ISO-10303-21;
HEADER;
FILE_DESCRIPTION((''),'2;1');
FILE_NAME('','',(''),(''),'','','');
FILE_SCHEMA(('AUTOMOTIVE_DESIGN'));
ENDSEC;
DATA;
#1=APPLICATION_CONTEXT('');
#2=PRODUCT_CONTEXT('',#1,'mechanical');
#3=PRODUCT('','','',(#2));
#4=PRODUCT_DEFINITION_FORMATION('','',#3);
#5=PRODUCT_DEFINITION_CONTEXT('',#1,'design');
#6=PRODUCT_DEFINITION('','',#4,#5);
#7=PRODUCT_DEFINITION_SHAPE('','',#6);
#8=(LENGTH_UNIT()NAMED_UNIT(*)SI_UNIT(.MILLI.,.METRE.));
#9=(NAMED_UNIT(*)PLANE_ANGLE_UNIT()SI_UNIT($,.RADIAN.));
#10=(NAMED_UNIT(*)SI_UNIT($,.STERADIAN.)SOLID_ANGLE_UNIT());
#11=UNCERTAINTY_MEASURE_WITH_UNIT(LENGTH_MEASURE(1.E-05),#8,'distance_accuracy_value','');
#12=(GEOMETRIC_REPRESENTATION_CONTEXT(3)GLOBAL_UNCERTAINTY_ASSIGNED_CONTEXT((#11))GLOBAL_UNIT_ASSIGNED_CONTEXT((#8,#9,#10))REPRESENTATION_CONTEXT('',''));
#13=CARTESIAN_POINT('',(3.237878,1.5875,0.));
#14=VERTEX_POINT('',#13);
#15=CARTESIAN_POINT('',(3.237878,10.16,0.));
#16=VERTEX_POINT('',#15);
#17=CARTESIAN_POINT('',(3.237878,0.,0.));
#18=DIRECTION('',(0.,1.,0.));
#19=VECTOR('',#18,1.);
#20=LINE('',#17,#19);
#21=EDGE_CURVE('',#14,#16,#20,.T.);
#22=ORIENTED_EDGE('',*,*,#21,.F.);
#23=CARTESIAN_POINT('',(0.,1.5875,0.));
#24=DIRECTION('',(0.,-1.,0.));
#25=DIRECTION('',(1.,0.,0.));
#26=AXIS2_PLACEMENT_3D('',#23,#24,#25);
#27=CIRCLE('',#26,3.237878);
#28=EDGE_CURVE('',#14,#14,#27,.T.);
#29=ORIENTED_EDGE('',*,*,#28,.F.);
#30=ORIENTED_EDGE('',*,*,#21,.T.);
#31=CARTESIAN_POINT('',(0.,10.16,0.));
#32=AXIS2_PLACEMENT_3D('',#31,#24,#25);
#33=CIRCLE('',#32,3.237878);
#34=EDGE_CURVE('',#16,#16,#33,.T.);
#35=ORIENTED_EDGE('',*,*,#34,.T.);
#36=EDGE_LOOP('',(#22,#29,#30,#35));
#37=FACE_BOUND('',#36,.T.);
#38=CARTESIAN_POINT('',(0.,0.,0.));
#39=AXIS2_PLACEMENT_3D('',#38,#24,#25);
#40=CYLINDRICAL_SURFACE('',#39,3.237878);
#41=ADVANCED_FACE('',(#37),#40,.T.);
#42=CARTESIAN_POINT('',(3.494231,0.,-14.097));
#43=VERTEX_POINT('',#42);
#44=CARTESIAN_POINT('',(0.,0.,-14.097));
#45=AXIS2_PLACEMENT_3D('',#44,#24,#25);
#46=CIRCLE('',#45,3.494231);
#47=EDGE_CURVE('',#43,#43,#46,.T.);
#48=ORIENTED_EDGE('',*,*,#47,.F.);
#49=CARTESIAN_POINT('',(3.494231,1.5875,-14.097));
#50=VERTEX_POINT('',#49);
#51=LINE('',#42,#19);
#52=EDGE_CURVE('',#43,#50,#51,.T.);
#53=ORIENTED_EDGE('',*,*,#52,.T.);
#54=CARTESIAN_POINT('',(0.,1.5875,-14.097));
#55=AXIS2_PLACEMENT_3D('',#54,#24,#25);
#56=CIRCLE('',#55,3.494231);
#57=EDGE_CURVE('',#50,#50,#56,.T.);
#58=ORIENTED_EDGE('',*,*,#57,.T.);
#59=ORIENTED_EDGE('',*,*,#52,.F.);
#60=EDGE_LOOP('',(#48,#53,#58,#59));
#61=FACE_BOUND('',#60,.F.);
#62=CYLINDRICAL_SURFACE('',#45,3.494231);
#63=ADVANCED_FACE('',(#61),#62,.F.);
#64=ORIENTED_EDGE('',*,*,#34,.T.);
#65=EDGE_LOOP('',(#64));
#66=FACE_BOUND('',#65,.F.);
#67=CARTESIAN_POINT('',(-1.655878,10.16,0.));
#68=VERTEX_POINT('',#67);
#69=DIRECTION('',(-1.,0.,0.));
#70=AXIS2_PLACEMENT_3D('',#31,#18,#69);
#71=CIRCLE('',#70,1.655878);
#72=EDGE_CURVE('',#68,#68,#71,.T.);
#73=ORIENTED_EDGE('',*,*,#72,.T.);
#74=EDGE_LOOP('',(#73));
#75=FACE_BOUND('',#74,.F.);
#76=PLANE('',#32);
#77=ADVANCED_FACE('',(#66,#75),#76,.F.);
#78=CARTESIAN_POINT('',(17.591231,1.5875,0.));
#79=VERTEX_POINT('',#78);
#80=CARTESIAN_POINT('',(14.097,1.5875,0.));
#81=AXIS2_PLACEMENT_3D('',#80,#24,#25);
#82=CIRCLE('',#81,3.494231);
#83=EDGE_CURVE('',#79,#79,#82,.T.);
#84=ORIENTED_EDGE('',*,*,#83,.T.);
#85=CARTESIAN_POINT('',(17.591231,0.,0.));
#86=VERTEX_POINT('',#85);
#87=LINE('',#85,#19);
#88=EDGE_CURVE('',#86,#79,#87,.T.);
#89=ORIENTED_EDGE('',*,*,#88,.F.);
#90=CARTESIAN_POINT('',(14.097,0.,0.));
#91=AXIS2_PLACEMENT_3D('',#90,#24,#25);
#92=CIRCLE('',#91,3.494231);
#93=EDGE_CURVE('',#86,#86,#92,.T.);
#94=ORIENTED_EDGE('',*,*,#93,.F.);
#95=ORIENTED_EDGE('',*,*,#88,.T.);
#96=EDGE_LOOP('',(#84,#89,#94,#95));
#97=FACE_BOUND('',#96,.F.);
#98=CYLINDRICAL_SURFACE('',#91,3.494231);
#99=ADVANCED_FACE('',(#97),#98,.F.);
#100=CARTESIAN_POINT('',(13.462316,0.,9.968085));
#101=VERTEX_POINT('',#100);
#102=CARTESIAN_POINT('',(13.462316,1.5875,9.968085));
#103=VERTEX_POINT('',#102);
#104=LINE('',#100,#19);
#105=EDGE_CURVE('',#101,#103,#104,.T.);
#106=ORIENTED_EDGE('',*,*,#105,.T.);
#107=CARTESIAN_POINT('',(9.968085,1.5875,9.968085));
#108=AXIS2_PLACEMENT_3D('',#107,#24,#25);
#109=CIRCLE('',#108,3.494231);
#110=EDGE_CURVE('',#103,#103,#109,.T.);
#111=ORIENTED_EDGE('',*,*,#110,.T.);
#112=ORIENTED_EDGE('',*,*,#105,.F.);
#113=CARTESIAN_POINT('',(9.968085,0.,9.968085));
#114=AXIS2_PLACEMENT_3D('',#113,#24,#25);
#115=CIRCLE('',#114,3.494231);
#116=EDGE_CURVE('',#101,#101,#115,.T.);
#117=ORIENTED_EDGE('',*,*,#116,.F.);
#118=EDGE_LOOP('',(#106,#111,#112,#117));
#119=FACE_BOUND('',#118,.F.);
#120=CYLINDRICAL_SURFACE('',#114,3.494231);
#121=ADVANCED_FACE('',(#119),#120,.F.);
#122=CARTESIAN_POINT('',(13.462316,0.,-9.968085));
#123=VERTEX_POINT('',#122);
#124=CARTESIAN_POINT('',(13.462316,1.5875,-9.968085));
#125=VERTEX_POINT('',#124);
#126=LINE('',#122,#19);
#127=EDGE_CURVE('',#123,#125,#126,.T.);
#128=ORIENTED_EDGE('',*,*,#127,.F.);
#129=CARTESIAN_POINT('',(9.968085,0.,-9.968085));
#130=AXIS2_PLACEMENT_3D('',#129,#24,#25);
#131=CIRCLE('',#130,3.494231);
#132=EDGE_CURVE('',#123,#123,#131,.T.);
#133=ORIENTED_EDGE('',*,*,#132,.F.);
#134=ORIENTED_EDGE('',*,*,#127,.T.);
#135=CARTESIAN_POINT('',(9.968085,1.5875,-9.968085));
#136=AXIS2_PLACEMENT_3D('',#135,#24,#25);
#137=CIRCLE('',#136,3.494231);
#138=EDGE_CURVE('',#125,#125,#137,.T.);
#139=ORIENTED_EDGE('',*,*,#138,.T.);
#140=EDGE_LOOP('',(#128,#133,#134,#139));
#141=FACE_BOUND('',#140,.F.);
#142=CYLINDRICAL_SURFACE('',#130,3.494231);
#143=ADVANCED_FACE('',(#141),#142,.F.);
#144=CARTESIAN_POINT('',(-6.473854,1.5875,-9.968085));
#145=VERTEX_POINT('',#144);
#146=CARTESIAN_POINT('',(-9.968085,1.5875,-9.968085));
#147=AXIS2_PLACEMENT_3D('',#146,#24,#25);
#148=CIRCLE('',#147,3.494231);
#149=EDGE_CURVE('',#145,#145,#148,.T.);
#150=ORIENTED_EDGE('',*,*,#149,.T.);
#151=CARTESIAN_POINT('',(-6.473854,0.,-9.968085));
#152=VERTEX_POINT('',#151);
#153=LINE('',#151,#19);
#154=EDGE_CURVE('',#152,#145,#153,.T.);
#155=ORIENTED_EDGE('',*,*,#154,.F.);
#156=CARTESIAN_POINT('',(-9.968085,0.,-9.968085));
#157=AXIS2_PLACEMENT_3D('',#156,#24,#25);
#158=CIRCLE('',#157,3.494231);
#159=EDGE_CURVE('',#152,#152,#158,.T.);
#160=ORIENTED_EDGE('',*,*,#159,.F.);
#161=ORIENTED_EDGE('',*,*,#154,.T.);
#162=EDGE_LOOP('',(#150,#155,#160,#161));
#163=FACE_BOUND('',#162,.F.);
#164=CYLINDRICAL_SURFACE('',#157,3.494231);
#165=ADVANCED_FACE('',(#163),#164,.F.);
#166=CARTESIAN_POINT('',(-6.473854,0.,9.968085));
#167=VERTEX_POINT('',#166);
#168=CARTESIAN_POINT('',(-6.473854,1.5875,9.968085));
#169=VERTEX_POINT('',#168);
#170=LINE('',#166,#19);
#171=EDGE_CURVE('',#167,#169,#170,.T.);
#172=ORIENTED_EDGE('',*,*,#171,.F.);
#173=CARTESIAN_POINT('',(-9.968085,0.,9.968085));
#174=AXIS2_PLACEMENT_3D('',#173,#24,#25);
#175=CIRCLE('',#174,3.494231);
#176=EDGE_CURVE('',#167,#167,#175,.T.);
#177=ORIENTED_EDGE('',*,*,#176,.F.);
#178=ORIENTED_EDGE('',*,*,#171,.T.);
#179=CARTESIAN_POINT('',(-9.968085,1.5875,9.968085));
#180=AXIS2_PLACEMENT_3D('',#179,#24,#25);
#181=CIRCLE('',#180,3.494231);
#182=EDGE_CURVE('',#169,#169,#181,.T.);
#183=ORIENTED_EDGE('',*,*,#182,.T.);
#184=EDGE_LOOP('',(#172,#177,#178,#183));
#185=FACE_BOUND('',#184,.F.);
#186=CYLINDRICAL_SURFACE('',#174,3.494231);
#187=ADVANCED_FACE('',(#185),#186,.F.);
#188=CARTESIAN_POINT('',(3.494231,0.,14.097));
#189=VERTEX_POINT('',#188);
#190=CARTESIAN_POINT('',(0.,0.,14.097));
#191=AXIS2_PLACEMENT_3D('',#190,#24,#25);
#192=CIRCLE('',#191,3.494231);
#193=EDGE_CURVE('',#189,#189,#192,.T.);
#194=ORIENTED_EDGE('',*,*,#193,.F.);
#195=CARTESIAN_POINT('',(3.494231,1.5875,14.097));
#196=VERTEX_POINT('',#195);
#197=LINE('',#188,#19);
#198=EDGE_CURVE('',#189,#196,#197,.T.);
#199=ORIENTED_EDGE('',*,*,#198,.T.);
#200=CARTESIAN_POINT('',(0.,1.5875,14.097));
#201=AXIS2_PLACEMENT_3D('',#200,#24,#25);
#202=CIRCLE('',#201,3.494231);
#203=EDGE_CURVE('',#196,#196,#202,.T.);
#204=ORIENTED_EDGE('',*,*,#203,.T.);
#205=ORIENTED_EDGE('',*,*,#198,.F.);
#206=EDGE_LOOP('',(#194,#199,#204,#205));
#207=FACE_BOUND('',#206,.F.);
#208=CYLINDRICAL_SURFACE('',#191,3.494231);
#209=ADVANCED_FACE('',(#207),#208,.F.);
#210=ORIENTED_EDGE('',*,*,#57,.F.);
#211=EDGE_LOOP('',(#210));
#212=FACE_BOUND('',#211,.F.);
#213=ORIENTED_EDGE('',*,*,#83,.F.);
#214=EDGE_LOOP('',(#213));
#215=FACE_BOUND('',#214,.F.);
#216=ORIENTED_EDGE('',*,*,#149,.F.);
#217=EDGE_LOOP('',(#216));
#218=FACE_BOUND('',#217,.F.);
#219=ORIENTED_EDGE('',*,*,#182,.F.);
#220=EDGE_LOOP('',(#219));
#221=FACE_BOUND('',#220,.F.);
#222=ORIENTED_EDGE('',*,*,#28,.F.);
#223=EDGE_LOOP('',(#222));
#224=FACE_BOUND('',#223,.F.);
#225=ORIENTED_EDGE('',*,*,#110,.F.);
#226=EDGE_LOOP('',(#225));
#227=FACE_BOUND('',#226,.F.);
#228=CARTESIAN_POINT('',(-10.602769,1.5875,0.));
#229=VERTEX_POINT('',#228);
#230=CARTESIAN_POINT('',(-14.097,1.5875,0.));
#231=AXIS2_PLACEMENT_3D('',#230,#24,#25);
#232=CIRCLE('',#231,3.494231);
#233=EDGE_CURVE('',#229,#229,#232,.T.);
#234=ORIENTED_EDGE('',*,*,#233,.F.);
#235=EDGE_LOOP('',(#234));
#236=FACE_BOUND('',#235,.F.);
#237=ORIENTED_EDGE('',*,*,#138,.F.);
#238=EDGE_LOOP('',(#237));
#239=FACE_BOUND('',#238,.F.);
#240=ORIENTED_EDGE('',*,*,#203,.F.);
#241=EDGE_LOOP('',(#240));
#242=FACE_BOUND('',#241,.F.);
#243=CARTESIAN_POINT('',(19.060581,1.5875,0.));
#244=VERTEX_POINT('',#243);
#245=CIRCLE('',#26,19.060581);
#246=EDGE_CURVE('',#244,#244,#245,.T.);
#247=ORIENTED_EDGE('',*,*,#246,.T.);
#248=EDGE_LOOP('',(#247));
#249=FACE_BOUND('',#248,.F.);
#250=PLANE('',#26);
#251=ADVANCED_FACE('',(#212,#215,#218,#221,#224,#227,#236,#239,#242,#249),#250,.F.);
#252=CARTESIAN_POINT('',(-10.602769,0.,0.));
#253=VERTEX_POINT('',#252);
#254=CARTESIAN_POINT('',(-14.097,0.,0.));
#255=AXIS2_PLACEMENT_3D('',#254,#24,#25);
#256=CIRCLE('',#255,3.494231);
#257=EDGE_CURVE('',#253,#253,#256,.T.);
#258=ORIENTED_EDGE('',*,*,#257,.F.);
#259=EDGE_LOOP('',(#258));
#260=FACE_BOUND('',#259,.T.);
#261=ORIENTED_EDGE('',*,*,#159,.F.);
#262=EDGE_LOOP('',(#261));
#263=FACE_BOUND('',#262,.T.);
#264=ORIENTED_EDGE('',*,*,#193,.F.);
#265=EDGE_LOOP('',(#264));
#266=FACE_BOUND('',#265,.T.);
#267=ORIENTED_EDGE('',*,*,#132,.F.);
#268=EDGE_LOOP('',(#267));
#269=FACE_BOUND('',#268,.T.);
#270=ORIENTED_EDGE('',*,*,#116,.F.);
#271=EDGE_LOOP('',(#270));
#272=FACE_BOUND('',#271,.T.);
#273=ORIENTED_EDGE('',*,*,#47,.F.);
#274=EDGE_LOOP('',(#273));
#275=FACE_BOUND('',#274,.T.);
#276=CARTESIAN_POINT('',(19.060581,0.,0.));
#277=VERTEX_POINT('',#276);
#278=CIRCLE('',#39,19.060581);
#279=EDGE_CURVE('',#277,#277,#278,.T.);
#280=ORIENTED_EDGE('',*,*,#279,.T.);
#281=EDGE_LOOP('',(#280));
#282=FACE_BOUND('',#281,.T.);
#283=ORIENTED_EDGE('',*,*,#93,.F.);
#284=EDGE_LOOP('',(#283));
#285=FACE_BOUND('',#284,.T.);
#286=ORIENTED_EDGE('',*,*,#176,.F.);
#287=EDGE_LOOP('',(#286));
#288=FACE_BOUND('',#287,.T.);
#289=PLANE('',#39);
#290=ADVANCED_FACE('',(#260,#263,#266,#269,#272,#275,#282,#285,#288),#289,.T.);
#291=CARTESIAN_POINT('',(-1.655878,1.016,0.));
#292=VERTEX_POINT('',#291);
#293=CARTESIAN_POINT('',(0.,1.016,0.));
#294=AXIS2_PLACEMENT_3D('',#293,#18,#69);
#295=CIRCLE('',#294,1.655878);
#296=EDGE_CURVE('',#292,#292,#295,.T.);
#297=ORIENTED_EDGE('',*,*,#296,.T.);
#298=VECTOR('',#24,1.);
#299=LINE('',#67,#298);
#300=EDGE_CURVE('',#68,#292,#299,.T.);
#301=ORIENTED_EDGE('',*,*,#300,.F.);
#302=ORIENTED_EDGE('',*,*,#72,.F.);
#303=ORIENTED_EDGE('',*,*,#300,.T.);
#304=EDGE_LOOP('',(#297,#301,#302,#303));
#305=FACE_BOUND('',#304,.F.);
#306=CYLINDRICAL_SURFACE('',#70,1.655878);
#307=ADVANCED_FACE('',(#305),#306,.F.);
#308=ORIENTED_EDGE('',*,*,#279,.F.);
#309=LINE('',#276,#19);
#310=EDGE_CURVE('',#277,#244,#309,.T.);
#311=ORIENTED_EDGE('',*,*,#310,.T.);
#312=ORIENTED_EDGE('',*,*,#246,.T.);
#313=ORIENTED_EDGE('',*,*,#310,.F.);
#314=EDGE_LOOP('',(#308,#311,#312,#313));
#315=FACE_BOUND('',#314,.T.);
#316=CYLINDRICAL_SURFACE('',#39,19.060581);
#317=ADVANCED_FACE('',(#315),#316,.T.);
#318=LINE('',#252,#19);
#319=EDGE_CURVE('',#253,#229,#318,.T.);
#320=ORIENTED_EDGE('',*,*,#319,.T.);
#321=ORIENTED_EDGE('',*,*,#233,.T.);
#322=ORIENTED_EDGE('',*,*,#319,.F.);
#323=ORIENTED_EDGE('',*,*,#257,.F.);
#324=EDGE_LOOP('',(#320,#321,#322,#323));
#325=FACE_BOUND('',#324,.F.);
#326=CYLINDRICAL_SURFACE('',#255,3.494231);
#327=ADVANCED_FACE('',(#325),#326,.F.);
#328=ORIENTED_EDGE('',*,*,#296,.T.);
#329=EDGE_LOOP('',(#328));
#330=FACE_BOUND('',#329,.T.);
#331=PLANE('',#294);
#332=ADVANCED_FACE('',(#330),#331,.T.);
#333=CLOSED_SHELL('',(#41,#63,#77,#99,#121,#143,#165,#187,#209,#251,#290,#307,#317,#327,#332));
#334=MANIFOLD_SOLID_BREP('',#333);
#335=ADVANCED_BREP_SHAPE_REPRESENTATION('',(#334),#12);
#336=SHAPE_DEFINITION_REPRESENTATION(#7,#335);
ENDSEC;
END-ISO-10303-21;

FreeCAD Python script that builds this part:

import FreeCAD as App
import Part
import Sketcher
Q = App.Units.Quantity

doc = App.newDocument("Part")
body = doc.addObject("PartDesign::Body", "Body")

sketch1 = doc.addObject("Sketcher::SketchObject", "Sketch")
body.addObject(sketch1)
sketch1.AttachmentSupport = (doc.XZ_Plane, [""])
sketch1.MapMode = "FlatFace"
sketch1.addGeometry(Part.Circle(App.Vector(0, 0, 0), App.Vector(0, 0, 1), 19), False)
sketch1.addConstraint(Sketcher.Constraint("Coincident", 0, 3, -1, 1))
sketch1.addConstraint(Sketcher.Constraint("Diameter", 0, 38.121162))
pad1 = doc.addObject("PartDesign::Pad", "Pad")
body.addObject(pad1)
pad1.Profile = sketch1
pad1.Length = Q("0.0625 in")
pad1.Reversed = True

sketch2 = doc.addObject("Sketcher::SketchObject", "Sketch001")
body.addObject(sketch2)
sketch2.AttachmentSupport = (doc.XZ_Plane, [""])
sketch2.MapMode = "FlatFace"
sketch2.addGeometry(Part.Circle(App.Vector(0, 14.1, 0), App.Vector(0, 0, 1), 3.5), False)
sketch2.addGeometry(Part.Circle(App.Vector(-10, 10, 0), App.Vector(0, 0, 1), 3.5), False)
sketch2.addGeometry(Part.Circle(App.Vector(-14.1, 0, 0), App.Vector(0, 0, 1), 3.5), False)
sketch2.addGeometry(Part.Circle(App.Vector(-10, -10, 0), App.Vector(0, 0, 1), 3.5), False)
sketch2.addGeometry(Part.Circle(App.Vector(0, -14.1, 0), App.Vector(0, 0, 1), 3.5), False)
sketch2.addGeometry(Part.Circle(App.Vector(10, -10, 0), App.Vector(0, 0, 1), 3.5), False)
sketch2.addGeometry(Part.Circle(App.Vector(14.1, 0, 0), App.Vector(0, 0, 1), 3.5), False)
sketch2.addGeometry(Part.Circle(App.Vector(10, 10, 0), App.Vector(0, 0, 1), 3.5), False)
sketch2.addConstraint(Sketcher.Constraint("Equal", 0, 1))
sketch2.addConstraint(Sketcher.Constraint("Equal", 1, 2))
sketch2.addConstraint(Sketcher.Constraint("Equal", 2, 3))
sketch2.addConstraint(Sketcher.Constraint("Equal", 3, 4))
sketch2.addConstraint(Sketcher.Constraint("Equal", 4, 5))
sketch2.addConstraint(Sketcher.Constraint("Equal", 5, 6))
sketch2.addConstraint(Sketcher.Constraint("Equal", 6, 7))
sketch2.addConstraint(Sketcher.Constraint("Symmetric", 0, 3, 4, 3, -1, 1))
sketch2.addConstraint(Sketcher.Constraint("Symmetric", 1, 3, 5, 3, -1, 1))
sketch2.addConstraint(Sketcher.Constraint("Symmetric", 2, 3, 6, 3, -1, 1))
sketch2.addConstraint(Sketcher.Constraint("Symmetric", 3, 3, 7, 3, -1, 1))
sketch2.addConstraint(Sketcher.Constraint("Symmetric", 3, 3, 5, 3, -2))
sketch2.addConstraint(Sketcher.Constraint("PointOnObject", 0, 3, -2))
sketch2.addConstraint(Sketcher.Constraint("PointOnObject", 2, 3, -1))
sketch2.addConstraint(Sketcher.Constraint("DistanceY", 4, 3, 0, 3, Q("1.11 in")))
sketch2.addConstraint(Sketcher.Constraint("DistanceX", 2, 3, -1, 1, Q("0.555 in")))
sketch2.addConstraint(Sketcher.Constraint("Diameter", 0, 6.988462))
sketch2.addConstraint(Sketcher.Constraint("DistanceY", 3, 3, 1, 3, 19.93617))
sketch2.addConstraint(Sketcher.Constraint("DistanceX", 3, 3, 5, 3, 19.93617))
pocket1 = doc.addObject("PartDesign::Pocket", "Pocket")
body.addObject(pocket1)
pocket1.Profile = sketch2
pocket1.Length = Q("0.83 in")

sketch3 = doc.addObject("Sketcher::SketchObject", "Sketch002")
body.addObject(sketch3)
sketch3.AttachmentSupport = (doc.XZ_Plane, [""])
sketch3.MapMode = "FlatFace"
sketch3.addGeometry(Part.Circle(App.Vector(0, 0, 0), App.Vector(0, 0, 1), 3.2), False)
sketch3.addConstraint(Sketcher.Constraint("Coincident", 0, 3, -1, 1))
sketch3.addConstraint(Sketcher.Constraint("Diameter", 0, 6.475756))
pad2 = doc.addObject("PartDesign::Pad", "Pad001")
body.addObject(pad2)
pad2.Profile = sketch3
pad2.Length = Q("0.4 in")
pad2.Reversed = True

sketch4 = doc.addObject("Sketcher::SketchObject", "Sketch003")
body.addObject(sketch4)
sketch4.AttachmentSupport = (doc.XZ_Plane, [""])
sketch4.MapMode = "FlatFace"
sketch4.AttachmentOffset = App.Placement(App.Vector(0, 0, -0.4 * 25.4), App.Rotation())
sketch4.addGeometry(Part.Circle(App.Vector(0, 0, 0), App.Vector(0, 0, 1), 1.7), False)
sketch4.addConstraint(Sketcher.Constraint("Coincident", 0, 3, -1, 1))
sketch4.addConstraint(Sketcher.Constraint("Diameter", 0, 3.311756))
pocket2 = doc.addObject("PartDesign::Pocket", "Pocket001")
body.addObject(pocket2)
pocket2.Profile = sketch4
pocket2.Length = Q("0.36 in")
pocket2.Reversed = True

doc.recompute()
